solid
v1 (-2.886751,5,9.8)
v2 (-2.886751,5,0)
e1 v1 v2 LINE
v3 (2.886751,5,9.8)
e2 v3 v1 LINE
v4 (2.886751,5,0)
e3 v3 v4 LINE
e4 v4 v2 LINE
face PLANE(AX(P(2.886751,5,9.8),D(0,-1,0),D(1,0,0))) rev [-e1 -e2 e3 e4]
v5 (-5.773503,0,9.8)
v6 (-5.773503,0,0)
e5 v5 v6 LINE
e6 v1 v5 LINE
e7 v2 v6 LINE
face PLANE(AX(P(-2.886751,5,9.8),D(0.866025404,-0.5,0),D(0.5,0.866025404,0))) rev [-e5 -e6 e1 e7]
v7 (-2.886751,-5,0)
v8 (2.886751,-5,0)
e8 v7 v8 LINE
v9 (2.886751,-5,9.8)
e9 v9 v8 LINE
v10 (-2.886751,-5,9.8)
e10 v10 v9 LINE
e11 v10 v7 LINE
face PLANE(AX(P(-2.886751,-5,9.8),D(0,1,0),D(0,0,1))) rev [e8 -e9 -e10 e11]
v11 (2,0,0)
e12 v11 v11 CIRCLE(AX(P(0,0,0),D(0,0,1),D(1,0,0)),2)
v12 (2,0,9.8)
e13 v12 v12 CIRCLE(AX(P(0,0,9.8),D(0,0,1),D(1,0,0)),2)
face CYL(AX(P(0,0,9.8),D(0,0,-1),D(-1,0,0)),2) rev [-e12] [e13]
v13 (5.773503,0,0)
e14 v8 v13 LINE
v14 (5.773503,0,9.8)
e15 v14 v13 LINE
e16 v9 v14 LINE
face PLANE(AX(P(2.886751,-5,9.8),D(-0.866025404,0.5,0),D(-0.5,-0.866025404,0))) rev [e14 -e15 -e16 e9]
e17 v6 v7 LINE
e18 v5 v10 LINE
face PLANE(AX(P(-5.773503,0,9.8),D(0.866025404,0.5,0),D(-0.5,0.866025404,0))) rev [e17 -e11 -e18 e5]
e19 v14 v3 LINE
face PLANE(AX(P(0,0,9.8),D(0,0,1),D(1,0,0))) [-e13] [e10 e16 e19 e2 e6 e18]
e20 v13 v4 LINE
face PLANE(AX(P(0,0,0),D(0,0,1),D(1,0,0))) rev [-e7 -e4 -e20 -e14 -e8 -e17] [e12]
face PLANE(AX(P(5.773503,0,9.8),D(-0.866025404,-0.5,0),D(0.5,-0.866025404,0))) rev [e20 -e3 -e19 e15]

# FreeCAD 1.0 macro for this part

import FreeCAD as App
import Part
import Sketcher

V = App.Vector
Q = App.Units.Quantity

doc = App.newDocument("Part")
body = doc.addObject("PartDesign::Body", "Body")

sketch1 = body.newObject("Sketcher::SketchObject", "Sketch")
sketch1.AttachmentSupport = (doc.getObject("XY_Plane"), [""])
sketch1.MapMode = "FlatFace"
sketch1.addGeometry([
    Part.LineSegment(V(2.9, -5, 0), V(5.8, 0, 0)),
    Part.LineSegment(V(5.8, 0, 0), V(2.9, 5, 0)),
    Part.LineSegment(V(2.9, 5, 0), V(-2.9, 5, 0)),
    Part.LineSegment(V(-2.9, 5, 0), V(-5.8, 0, 0)),
    Part.LineSegment(V(-5.8, 0, 0), V(-2.9, -5, 0)),
    Part.LineSegment(V(-2.9, -5, 0), V(2.9, -5, 0)),
    Part.Circle(V(0, 0, 0), V(0, 0, 1), 2),
], False)
sketch1.addConstraint([
    Sketcher.Constraint("Coincident", 0, 2, 1, 1),
    Sketcher.Constraint("Coincident", 1, 2, 2, 1),
    Sketcher.Constraint("Coincident", 2, 2, 3, 1),
    Sketcher.Constraint("Coincident", 3, 2, 4, 1),
    Sketcher.Constraint("Coincident", 4, 2, 5, 1),
    Sketcher.Constraint("Coincident", 5, 2, 0, 1),
    Sketcher.Constraint("Horizontal", 2),
    Sketcher.Constraint("Horizontal", 5),
    Sketcher.Constraint("Coincident", 6, 3, -1, 1),
    Sketcher.Constraint("Symmetric", 0, 2, 3, 2, -1, 1),
    Sketcher.Constraint("Symmetric", 1, 2, 4, 2, -1, 1),
    Sketcher.Constraint("PointOnObject", 0, 2, -1),
    Sketcher.Constraint("Parallel", 0, 3),
    Sketcher.Constraint("Vertical", 2, 2, 4, 2),
    Sketcher.Constraint("Diameter", 6, Q("4 mm")),
    Sketcher.Constraint("Angle", 0, Q("60 deg")),
    Sketcher.Constraint("DistanceY", -1, 1, 1, 2, Q("5 mm")),
    Sketcher.Constraint("DistanceX", 2, 2, 2, 1, Q("5.773503 mm")),
])
pad1 = body.newObject("PartDesign::Pad", "Pad")
pad1.Profile = sketch1
pad1.Length = 9.8

doc.recompute()
